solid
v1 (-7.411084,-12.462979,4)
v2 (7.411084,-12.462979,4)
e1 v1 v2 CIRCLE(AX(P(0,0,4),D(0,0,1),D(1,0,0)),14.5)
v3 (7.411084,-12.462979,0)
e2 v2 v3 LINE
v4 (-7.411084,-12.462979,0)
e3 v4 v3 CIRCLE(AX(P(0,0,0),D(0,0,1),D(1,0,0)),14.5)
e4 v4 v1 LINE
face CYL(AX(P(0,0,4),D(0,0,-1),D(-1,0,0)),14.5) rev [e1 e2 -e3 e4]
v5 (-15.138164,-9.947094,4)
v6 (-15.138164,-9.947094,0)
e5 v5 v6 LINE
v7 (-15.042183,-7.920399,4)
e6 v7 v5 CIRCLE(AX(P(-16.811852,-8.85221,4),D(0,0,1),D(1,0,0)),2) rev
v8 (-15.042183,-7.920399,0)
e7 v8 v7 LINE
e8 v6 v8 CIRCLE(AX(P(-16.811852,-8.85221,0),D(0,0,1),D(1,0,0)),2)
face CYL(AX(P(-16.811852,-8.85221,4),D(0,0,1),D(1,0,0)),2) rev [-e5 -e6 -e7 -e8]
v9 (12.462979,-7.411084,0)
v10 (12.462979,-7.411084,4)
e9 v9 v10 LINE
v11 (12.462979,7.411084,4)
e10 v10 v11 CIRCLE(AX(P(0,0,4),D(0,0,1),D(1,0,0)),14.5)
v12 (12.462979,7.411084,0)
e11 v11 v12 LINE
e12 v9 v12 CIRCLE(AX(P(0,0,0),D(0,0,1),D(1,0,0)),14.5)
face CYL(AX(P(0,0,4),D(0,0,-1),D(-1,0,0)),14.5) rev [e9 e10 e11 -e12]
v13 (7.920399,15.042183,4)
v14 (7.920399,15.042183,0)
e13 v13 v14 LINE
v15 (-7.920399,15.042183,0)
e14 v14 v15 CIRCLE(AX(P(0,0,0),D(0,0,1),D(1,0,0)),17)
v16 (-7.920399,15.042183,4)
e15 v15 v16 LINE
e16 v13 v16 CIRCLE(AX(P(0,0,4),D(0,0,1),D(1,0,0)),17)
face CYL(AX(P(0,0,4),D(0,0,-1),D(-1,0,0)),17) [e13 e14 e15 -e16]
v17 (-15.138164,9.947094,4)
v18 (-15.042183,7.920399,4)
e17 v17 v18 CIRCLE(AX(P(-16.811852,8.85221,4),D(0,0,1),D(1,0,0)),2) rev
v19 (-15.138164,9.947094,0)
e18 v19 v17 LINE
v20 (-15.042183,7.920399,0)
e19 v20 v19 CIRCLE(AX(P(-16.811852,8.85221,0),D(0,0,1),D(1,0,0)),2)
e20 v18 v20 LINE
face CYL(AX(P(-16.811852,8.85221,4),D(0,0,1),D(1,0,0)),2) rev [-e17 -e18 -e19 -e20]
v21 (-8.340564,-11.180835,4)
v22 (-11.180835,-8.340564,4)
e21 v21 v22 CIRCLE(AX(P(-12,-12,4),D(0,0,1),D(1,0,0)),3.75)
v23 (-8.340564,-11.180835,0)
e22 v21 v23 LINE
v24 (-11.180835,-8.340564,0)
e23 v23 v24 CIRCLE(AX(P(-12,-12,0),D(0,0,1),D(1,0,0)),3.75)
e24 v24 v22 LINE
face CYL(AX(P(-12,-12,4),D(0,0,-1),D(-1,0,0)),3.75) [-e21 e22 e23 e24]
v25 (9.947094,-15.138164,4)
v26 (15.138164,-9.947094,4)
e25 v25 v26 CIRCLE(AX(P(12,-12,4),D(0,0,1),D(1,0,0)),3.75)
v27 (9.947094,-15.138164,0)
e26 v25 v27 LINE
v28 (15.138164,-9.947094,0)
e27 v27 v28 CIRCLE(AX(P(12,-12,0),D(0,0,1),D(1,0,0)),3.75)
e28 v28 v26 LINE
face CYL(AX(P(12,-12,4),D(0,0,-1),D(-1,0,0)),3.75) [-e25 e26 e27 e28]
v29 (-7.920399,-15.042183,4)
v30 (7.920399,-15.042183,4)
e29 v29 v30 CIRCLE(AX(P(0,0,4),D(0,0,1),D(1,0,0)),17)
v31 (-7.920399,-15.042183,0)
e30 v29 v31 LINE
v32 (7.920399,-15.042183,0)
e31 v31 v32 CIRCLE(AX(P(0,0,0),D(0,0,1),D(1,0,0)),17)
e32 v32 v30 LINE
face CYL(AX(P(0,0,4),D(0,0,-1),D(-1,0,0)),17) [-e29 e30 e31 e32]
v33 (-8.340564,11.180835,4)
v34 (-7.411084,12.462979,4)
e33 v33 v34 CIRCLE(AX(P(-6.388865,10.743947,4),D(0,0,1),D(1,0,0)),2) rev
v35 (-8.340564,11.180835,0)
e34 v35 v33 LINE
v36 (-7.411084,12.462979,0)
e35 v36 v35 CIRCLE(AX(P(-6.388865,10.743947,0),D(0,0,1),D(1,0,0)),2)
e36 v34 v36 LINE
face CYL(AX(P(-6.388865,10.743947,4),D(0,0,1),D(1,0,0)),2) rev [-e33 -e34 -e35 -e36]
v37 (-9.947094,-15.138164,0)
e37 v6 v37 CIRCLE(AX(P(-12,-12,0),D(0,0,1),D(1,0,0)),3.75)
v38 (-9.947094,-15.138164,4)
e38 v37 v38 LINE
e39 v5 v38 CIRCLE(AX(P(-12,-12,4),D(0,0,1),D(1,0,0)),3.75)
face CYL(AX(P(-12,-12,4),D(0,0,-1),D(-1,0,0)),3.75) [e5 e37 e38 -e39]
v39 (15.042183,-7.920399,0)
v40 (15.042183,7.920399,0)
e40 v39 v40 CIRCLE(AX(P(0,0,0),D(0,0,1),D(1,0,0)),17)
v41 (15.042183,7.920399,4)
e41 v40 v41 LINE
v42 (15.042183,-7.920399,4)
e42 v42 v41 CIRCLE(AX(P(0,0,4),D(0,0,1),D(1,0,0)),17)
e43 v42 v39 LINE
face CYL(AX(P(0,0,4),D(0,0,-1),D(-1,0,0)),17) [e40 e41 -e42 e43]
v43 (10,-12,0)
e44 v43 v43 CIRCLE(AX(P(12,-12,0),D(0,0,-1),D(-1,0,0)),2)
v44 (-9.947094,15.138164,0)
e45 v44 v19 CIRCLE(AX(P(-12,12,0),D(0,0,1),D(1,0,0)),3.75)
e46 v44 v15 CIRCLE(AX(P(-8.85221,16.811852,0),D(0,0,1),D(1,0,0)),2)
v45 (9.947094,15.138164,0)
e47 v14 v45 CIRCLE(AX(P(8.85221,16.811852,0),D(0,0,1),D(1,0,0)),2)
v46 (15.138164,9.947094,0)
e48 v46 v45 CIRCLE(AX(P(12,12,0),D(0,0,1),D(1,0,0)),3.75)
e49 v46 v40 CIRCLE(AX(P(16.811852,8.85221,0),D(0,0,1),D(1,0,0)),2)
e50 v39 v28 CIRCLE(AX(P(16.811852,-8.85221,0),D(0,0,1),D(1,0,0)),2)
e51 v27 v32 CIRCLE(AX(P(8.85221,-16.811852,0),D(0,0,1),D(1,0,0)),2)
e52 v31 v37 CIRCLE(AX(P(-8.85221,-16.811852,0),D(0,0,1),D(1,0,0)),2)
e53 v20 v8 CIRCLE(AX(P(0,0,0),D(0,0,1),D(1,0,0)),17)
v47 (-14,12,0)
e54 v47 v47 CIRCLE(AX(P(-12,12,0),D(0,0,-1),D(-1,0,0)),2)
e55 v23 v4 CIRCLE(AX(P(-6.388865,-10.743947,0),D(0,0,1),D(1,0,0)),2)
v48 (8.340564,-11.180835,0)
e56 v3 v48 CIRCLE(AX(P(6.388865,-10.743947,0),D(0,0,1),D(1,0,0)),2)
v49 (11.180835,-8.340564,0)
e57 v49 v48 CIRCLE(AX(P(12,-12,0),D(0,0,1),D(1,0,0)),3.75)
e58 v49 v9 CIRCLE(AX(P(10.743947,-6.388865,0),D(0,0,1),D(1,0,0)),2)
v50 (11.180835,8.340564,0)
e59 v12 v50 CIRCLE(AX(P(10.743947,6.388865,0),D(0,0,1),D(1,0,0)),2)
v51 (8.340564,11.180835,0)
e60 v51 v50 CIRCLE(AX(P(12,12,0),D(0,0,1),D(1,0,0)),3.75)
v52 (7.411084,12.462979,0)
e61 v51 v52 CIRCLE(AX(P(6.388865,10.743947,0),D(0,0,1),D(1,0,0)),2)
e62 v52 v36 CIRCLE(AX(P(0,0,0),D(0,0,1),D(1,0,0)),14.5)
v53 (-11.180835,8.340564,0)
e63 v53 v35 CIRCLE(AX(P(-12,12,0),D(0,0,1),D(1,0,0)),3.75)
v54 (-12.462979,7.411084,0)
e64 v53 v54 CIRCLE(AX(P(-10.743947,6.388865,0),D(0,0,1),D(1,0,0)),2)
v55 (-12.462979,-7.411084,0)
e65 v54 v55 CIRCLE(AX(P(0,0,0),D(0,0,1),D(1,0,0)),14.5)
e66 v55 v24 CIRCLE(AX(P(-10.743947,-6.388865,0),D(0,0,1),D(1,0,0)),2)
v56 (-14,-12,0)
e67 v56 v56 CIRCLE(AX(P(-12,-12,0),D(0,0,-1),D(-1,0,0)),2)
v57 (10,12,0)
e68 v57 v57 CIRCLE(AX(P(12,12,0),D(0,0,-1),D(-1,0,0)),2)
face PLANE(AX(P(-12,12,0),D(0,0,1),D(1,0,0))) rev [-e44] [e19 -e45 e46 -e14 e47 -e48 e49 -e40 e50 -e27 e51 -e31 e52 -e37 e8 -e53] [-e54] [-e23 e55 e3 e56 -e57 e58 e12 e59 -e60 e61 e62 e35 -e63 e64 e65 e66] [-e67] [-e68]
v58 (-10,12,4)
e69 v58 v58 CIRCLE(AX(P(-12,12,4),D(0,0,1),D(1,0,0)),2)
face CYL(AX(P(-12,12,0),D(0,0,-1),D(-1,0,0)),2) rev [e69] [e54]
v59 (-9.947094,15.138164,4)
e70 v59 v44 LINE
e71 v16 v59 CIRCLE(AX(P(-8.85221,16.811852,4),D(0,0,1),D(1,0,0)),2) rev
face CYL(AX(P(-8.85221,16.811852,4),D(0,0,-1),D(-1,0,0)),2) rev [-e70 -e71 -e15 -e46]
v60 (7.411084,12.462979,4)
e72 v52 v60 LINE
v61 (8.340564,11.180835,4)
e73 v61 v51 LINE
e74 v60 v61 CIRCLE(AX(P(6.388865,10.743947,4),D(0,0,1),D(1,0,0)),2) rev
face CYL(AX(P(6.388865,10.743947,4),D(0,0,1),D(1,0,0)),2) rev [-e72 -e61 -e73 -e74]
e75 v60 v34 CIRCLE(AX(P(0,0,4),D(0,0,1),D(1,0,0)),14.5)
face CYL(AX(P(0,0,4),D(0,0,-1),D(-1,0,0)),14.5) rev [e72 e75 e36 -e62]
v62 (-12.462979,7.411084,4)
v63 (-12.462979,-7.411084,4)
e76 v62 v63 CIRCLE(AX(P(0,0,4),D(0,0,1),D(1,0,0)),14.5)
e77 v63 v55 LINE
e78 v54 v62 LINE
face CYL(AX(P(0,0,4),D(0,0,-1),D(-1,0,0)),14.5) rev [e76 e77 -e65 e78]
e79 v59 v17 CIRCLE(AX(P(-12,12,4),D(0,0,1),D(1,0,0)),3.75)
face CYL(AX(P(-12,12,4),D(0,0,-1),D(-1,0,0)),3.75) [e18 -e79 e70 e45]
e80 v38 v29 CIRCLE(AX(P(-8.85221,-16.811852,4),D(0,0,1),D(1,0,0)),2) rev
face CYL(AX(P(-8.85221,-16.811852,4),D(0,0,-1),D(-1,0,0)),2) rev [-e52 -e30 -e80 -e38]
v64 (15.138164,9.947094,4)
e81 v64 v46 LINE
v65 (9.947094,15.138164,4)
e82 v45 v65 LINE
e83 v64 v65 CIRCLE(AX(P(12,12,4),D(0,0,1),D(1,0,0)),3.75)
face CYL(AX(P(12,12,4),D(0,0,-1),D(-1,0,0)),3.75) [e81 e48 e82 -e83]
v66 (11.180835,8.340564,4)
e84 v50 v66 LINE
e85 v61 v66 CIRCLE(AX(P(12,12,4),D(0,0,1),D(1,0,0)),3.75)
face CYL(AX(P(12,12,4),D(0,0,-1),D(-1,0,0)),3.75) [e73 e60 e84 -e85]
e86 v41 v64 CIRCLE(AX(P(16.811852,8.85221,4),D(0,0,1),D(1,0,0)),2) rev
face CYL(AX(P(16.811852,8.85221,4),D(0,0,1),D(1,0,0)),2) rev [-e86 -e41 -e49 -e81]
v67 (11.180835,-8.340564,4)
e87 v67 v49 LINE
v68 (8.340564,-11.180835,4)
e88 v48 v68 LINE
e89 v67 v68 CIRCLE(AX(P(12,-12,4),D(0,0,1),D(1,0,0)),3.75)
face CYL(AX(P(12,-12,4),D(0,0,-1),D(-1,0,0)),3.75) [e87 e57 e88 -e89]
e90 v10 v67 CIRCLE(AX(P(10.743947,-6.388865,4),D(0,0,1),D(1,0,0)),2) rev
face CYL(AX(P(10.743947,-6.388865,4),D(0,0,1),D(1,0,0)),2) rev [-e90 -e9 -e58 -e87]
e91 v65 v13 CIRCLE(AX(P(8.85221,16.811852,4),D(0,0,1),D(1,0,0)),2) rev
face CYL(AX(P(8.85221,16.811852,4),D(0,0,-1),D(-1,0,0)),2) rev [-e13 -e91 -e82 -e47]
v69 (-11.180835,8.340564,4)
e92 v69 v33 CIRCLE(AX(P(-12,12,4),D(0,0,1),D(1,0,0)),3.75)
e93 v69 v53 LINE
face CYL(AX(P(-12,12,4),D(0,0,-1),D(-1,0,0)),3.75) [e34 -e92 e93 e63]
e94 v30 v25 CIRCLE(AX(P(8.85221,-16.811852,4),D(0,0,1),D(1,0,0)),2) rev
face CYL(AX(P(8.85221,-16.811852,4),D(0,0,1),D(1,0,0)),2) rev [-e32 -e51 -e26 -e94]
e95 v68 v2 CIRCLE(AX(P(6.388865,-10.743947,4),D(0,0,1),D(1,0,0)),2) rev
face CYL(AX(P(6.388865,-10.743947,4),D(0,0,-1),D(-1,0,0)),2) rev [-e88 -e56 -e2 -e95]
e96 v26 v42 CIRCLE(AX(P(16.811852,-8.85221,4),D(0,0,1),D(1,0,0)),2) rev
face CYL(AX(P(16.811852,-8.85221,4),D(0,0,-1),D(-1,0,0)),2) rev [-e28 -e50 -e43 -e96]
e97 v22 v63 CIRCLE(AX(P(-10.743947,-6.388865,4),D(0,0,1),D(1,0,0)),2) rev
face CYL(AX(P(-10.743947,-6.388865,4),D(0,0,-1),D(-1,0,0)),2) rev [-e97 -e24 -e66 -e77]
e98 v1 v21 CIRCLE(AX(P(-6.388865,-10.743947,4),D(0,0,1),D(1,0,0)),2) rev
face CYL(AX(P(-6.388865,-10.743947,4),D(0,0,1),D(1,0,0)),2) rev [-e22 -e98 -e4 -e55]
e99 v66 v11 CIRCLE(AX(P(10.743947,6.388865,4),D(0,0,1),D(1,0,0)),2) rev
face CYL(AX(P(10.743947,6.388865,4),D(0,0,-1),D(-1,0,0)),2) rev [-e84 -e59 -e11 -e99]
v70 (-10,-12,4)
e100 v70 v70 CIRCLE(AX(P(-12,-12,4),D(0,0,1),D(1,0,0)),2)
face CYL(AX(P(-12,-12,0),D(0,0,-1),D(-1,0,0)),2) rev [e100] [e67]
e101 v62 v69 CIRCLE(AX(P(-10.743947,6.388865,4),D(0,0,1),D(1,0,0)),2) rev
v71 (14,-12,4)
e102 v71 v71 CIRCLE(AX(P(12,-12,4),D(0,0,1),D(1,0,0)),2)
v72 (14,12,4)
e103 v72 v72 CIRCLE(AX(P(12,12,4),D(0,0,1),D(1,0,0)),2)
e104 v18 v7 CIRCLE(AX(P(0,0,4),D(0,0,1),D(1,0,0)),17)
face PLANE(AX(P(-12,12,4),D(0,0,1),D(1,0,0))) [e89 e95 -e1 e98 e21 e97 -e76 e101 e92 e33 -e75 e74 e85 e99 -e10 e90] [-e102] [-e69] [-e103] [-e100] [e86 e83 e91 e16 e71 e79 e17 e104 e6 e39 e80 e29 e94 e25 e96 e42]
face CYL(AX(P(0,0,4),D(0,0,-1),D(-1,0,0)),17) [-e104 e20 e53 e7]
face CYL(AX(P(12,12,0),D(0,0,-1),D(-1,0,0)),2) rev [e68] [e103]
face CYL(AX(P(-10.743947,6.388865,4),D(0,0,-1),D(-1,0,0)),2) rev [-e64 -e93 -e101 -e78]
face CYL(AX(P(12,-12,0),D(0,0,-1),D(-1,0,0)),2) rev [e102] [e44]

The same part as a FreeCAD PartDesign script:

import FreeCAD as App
import Part
import Sketcher
from FreeCAD import Vector
Q = App.Units.Quantity


def edges_at(feature, points):
    """Names of the edges that pass closest to the given points."""
    edges = feature.Shape.Edges
    near = lambda p: min(range(len(edges)), key=lambda i: edges[i].distToShape(Part.Vertex(*p))[0])
    return sorted({f"Edge{near(p) + 1}" for p in points})

doc = App.newDocument("Part")
params = doc.addObject("Spreadsheet::Sheet", "Params")
for row, (alias, value) in enumerate([
    ("sketch1_diameter", "7.5 mm"),
    ("pad1_length", "4 mm"),
    ("sketch2_diameter", "7.5 mm"),
    ("pad2_length", "4 mm"),
    ("sketch3_diameter", "7.5 mm"),
    ("pad3_length", "4 mm"),
    ("sketch4_diameter", "7.5 mm"),
    ("pad4_length", "4 mm"),
    ("sketch5_diameter", "34 mm"),
    ("sketch5_diameter2", "29 mm"),
    ("pad5_length", "4 mm"),
    ("fillet_radius", "2 mm"),
    ("fillet2_radius", "2 mm"),
    ("sketch6_diameter", "4 mm"),
    ("hole_diameter", "4 mm"),
    ("hole_depth", "93.98 mm"),
], start=1):
    params.set(f"A{row}", alias)
    params.set(f"B{row}", "=" + value)
    params.setAlias(f"B{row}", alias)

body = doc.addObject("PartDesign::Body", "Body")

# Sketch on XY plane
sketch1 = doc.addObject("Sketcher::SketchObject", "Sketch")
body.addObject(sketch1)
sketch1.AttachmentSupport = (doc.XY_Plane, [""])
sketch1.MapMode = "FlatFace"
sketch1.addGeometry(Part.Circle(Vector(-12, 12, 0), Vector(0, 0, 1), 3.8), False)
sketch1.addConstraint(Sketcher.Constraint("Diameter", 0, Q("7.5 mm")))
sketch1.addConstraint(Sketcher.Constraint("DistanceX", 0, 3, -1, 1, Q("12 mm")))
sketch1.addConstraint(Sketcher.Constraint("DistanceY", -1, 1, 0, 3, Q("12 mm")))
sketch1.setExpression("Constraints[0]", "Params.sketch1_diameter")
pad1 = doc.addObject("PartDesign::Pad", "Pad")
body.addObject(pad1)
pad1.Profile = sketch1
pad1.setExpression("Length", "Params.pad1_length")
body2 = doc.addObject("PartDesign::Body", "Body001")

# Sketch on XY plane
sketch2 = doc.addObject("Sketcher::SketchObject", "Sketch001")
body2.addObject(sketch2)
sketch2.AttachmentSupport = (doc.getObject("XY_Plane001"), [""])
sketch2.MapMode = "FlatFace"
sketch2.addGeometry(Part.Circle(Vector(12, 12, 0), Vector(0, 0, 1), 3.8), False)
sketch2.addConstraint(Sketcher.Constraint("Diameter", 0, Q("7.5 mm")))
sketch2.addConstraint(Sketcher.Constraint("DistanceX", -1, 1, 0, 3, Q("12 mm")))
sketch2.addConstraint(Sketcher.Constraint("DistanceY", -1, 1, 0, 3, Q("12 mm")))
sketch2.setExpression("Constraints[0]", "Params.sketch2_diameter")
pad2 = doc.addObject("PartDesign::Pad", "Pad001")
body2.addObject(pad2)
pad2.Profile = sketch2
pad2.setExpression("Length", "Params.pad2_length")
body3 = doc.addObject("PartDesign::Body", "Body002")

# Sketch on XY plane
sketch3 = doc.addObject("Sketcher::SketchObject", "Sketch002")
body3.addObject(sketch3)
sketch3.AttachmentSupport = (doc.getObject("XY_Plane002"), [""])
sketch3.MapMode = "FlatFace"
sketch3.addGeometry(Part.Circle(Vector(-12, -12, 0), Vector(0, 0, 1), 3.8), False)
sketch3.addConstraint(Sketcher.Constraint("Diameter", 0, Q("7.5 mm")))
sketch3.addConstraint(Sketcher.Constraint("DistanceX", 0, 3, -1, 1, Q("12 mm")))
sketch3.addConstraint(Sketcher.Constraint("DistanceY", 0, 3, -1, 1, Q("12 mm")))
sketch3.setExpression("Constraints[0]", "Params.sketch3_diameter")
pad3 = doc.addObject("PartDesign::Pad", "Pad002")
body3.addObject(pad3)
pad3.Profile = sketch3
pad3.setExpression("Length", "Params.pad3_length")
body4 = doc.addObject("PartDesign::Body", "Body003")

# Sketch on XY plane
sketch4 = doc.addObject("Sketcher::SketchObject", "Sketch003")
body4.addObject(sketch4)
sketch4.AttachmentSupport = (doc.getObject("XY_Plane003"), [""])
sketch4.MapMode = "FlatFace"
sketch4.addGeometry(Part.Circle(Vector(12, -12, 0), Vector(0, 0, 1), 3.8), False)
sketch4.addConstraint(Sketcher.Constraint("Diameter", 0, Q("7.5 mm")))
sketch4.addConstraint(Sketcher.Constraint("DistanceX", -1, 1, 0, 3, Q("12 mm")))
sketch4.addConstraint(Sketcher.Constraint("DistanceY", 0, 3, -1, 1, Q("12 mm")))
sketch4.setExpression("Constraints[0]", "Params.sketch4_diameter")
pad4 = doc.addObject("PartDesign::Pad", "Pad003")
body4.addObject(pad4)
pad4.Profile = sketch4
pad4.setExpression("Length", "Params.pad4_length")
body.AllowCompound = True
doc.recompute()

boolean = doc.addObject("PartDesign::Boolean", "Boolean")
body.addObject(boolean)
boolean.Type = "Fuse"
boolean.addObjects([body2])
doc.recompute()

boolean2 = doc.addObject("PartDesign::Boolean", "Boolean001")
body.addObject(boolean2)
boolean2.Type = "Fuse"
boolean2.addObjects([body3])
doc.recompute()

boolean3 = doc.addObject("PartDesign::Boolean", "Boolean002")
body.addObject(boolean3)
boolean3.Type = "Fuse"
boolean3.addObjects([body4])

# Sketch on XY plane
sketch5 = doc.addObject("Sketcher::SketchObject", "Sketch004")
body.addObject(sketch5)
sketch5.AttachmentSupport = (doc.XY_Plane, [""])
sketch5.MapMode = "FlatFace"
sketch5.addGeometry(Part.Circle(Vector(0, 0, 0), Vector(0, 0, 1), 17), False)
sketch5.addGeometry(Part.Circle(Vector(0, 0, 0), Vector(0, 0, 1), 14), False)
sketch5.addConstraint(Sketcher.Constraint("Coincident", 0, 3, -1, 1))
sketch5.addConstraint(Sketcher.Constraint("Coincident", 1, 3, -1, 1))
sketch5.addConstraint(Sketcher.Constraint("Diameter", 0, Q("34 mm")))
sketch5.addConstraint(Sketcher.Constraint("Diameter", 1, Q("29 mm")))
sketch5.setExpression("Constraints[2]", "Params.sketch5_diameter")
sketch5.setExpression("Constraints[3]", "Params.sketch5_diameter2")
pad5 = doc.addObject("PartDesign::Pad", "Pad004")
body.addObject(pad5)
pad5.Profile = sketch5
pad5.setExpression("Length", "Params.pad5_length")
doc.recompute()

fillet = doc.addObject("PartDesign::Fillet", "Fillet")
body.addObject(fillet)
fillet.Base = (pad5, edges_at(pad5, [
    (-14.366, 9.09, 2),
    (-9.09, 14.366, 2),
    (14.366, 9.09, 2),
    (9.09, 14.366, 2),
    (-14.366, -9.09, 2),
    (-9.09, -14.366, 2),
    (9.09, -14.366, 2),
    (14.366, -9.09, 2),
]))
fillet.setExpression("Radius", "Params.fillet_radius")
doc.recompute()

fillet2 = doc.addObject("PartDesign::Fillet", "Fillet001")
body.addObject(fillet2)
fillet2.Base = (fillet, edges_at(fillet, [
    (-11.924, 8.251, 2),
    (-8.251, 11.924, 2),
    (8.251, 11.924, 2),
    (11.924, 8.251, 2),
    (-11.924, -8.251, 2),
    (-8.251, -11.924, 2),
    (8.251, -11.924, 2),
    (11.924, -8.251, 2),
]))
fillet2.setExpression("Radius", "Params.fillet2_radius")

# Sketch on XY plane
sketch6 = doc.addObject("Sketcher::SketchObject", "Sketch005")
body.addObject(sketch6)
sketch6.AttachmentSupport = (doc.XY_Plane, [""])
sketch6.MapMode = "FlatFace"
sketch6.addGeometry(Part.Circle(Vector(12, 12, 0), Vector(0, 0, 1), 2), False)
sketch6.addGeometry(Part.Circle(Vector(-12, 12, 0), Vector(0, 0, 1), 2), False)
sketch6.addGeometry(Part.Circle(Vector(-12, -12, 0), Vector(0, 0, 1), 2), False)
sketch6.addGeometry(Part.Circle(Vector(12, -12, 0), Vector(0, 0, 1), 2), False)
sketch6.addConstraint(Sketcher.Constraint("Equal", 0, 1))
sketch6.addConstraint(Sketcher.Constraint("Equal", 1, 2))
sketch6.addConstraint(Sketcher.Constraint("Equal", 2, 3))
sketch6.addConstraint(Sketcher.Constraint("Symmetric", 0, 3, 2, 3, -1, 1))
sketch6.addConstraint(Sketcher.Constraint("Symmetric", 1, 3, 3, 3, -1, 1))
sketch6.addConstraint(Sketcher.Constraint("Symmetric", 0, 3, 1, 3, -2))
sketch6.addConstraint(Sketcher.Constraint("Diameter", 0, Q("4 mm")))
sketch6.addConstraint(Sketcher.Constraint("DistanceX", -1, 1, 0, 3, Q("12 mm")))
sketch6.addConstraint(Sketcher.Constraint("DistanceY", -1, 1, 0, 3, Q("12 mm")))
sketch6.setExpression("Constraints[6]", "Params.sketch6_diameter")
doc.recompute()
hole = doc.addObject("PartDesign::Hole", "Hole")
body.addObject(hole)
hole.Profile = sketch6
hole.ThreadType = "None"
hole.setExpression("Diameter", "Params.hole_diameter")
hole.DepthType = "Dimension"
hole.setExpression("Depth", "Params.hole_depth")
hole.DrillPoint = "Flat"
hole.Reversed = True

doc.recompute()
